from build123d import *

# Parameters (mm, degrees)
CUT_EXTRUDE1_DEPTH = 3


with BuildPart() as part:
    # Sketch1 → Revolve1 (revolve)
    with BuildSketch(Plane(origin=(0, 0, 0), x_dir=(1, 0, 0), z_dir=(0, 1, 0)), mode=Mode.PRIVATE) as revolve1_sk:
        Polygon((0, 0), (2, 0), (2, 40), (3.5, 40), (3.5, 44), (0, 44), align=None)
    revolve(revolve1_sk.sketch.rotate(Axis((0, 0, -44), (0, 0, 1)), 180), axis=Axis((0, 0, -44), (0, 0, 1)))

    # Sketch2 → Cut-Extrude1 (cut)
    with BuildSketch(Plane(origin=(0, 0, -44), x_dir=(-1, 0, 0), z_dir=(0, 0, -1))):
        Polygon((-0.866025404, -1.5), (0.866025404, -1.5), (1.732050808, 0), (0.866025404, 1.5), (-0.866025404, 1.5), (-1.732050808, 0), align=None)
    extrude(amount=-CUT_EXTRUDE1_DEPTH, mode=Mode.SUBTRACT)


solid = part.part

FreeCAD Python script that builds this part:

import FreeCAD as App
import Part
import Sketcher
from FreeCAD import Vector
Q = App.Units.Quantity

doc = App.newDocument("Part")
params = doc.addObject("Spreadsheet::Sheet", "Params")
for row, (alias, value) in enumerate([
    ("sketch1_width", "2 mm"),
    ("sketch1_height", "40 mm"),
    ("sketch1_height2", "4 mm"),
    ("sketch1_width2", "1.5 mm"),
    ("revolution_angle", "360 deg"),
    ("pocket1_length", "3 mm"),
], start=1):
    params.set(f"A{row}", alias)
    params.set(f"B{row}", "=" + value)
    params.setAlias(f"B{row}", alias)

body = doc.addObject("PartDesign::Body", "Body")

sketch1 = doc.addObject("Sketcher::SketchObject", "Sketch")
body.addObject(sketch1)
sketch1.AttachmentSupport = (doc.XZ_Plane, [""])
sketch1.MapMode = "FlatFace"
sketch1.addGeometry([
    Part.LineSegment(Vector(0, 0, 0), Vector(2, 0, 0)),
    Part.LineSegment(Vector(2, 0, 0), Vector(2, -40, 0)),
    Part.LineSegment(Vector(2, -40, 0), Vector(3.5, -40, 0)),
    Part.LineSegment(Vector(3.5, -40, 0), Vector(3.5, -44, 0)),
    Part.LineSegment(Vector(3.5, -44, 0), Vector(0, -44, 0)),
    Part.LineSegment(Vector(0, -44, 0), Vector(0, 0, 0)),
], False)
sketch1.addConstraint([
    Sketcher.Constraint("Coincident", 0, 2, 1, 1),
    Sketcher.Constraint("Coincident", 1, 2, 2, 1),
    Sketcher.Constraint("Coincident", 2, 2, 3, 1),
    Sketcher.Constraint("Coincident", 3, 2, 4, 1),
    Sketcher.Constraint("Coincident", 4, 2, 5, 1),
    Sketcher.Constraint("Coincident", 5, 2, 0, 1),
    Sketcher.Constraint("Horizontal", 0),
    Sketcher.Constraint("Vertical", 1),
    Sketcher.Constraint("Horizontal", 2),
    Sketcher.Constraint("Vertical", 3),
    Sketcher.Constraint("Horizontal", 4),
    Sketcher.Constraint("Vertical", 5),
    Sketcher.Constraint("Coincident", 5, 2, -1, 1),
    Sketcher.Constraint("DistanceX", 0, 1, 0, 2, 2.0),
    Sketcher.Constraint("DistanceY", 1, 2, 1, 1, 40.0),
    Sketcher.Constraint("DistanceY", 3, 2, 3, 1, 4.0),
    Sketcher.Constraint("DistanceX", 2, 1, 2, 2, 1.5),
])
sketch1.setExpression("Constraints[13]", "Params.sketch1_width")
sketch1.setExpression("Constraints[14]", "Params.sketch1_height")
sketch1.setExpression("Constraints[15]", "Params.sketch1_height2")
sketch1.setExpression("Constraints[16]", "Params.sketch1_width2")
revolution = doc.addObject("PartDesign::Revolution", "Revolution")
body.addObject(revolution)
revolution.Profile = sketch1
revolution.ReferenceAxis = (sketch1, ["V_Axis"])
revolution.setExpression("Angle", "Params.revolution_angle")

sketch2 = doc.addObject("Sketcher::SketchObject", "Sketch001")
body.addObject(sketch2)
sketch2.AttachmentSupport = (doc.XY_Plane, [""])
sketch2.MapMode = "FlatFace"
sketch2.AttachmentOffset = App.Placement(Vector(0, 0, -44), App.Rotation())
sketch2.addGeometry([
    Part.LineSegment(Vector(0.866025, -1.5, 0), Vector(-0.866025, -1.5, 0)),
    Part.LineSegment(Vector(-0.866025, -1.5, 0), Vector(-1.732051, 0, 0)),
    Part.LineSegment(Vector(-1.732051, 0, 0), Vector(-0.866025, 1.5, 0)),
    Part.LineSegment(Vector(-0.866025, 1.5, 0), Vector(0.866025, 1.5, 0)),
    Part.LineSegment(Vector(0.866025, 1.5, 0), Vector(1.732051, 0, 0)),
    Part.LineSegment(Vector(1.732051, 0, 0), Vector(0.866025, -1.5, 0)),
], False)
sketch2.addConstraint([
    Sketcher.Constraint("Coincident", 0, 2, 1, 1),
    Sketcher.Constraint("Coincident", 1, 2, 2, 1),
    Sketcher.Constraint("Coincident", 2, 2, 3, 1),
    Sketcher.Constraint("Coincident", 3, 2, 4, 1),
    Sketcher.Constraint("Coincident", 4, 2, 5, 1),
    Sketcher.Constraint("Coincident", 5, 2, 0, 1),
    Sketcher.Constraint("Horizontal", 0),
    Sketcher.Constraint("Horizontal", 3),
    Sketcher.Constraint("Symmetric", 0, 2, 3, 2, -1, 1),
    Sketcher.Constraint("Symmetric", 1, 2, 4, 2, -1, 1),
    Sketcher.Constraint("PointOnObject", 1, 2, -1),
    Sketcher.Constraint("Parallel", 2, 5),
    Sketcher.Constraint("Vertical", 0, 2, 2, 2),
    Sketcher.Constraint("Angle", 1, Q("120 deg")),
    Sketcher.Constraint("DistanceY", 0, 2, 2, 2, 3.0),
    Sketcher.Constraint("DistanceX", 0, 2, 0, 1, 1.732051),
])
pocket1 = doc.addObject("PartDesign::Pocket", "Pocket")
body.addObject(pocket1)
pocket1.Profile = sketch2
pocket1.setExpression("Length", "Params.pocket1_length")
pocket1.Reversed = True

doc.recompute()
